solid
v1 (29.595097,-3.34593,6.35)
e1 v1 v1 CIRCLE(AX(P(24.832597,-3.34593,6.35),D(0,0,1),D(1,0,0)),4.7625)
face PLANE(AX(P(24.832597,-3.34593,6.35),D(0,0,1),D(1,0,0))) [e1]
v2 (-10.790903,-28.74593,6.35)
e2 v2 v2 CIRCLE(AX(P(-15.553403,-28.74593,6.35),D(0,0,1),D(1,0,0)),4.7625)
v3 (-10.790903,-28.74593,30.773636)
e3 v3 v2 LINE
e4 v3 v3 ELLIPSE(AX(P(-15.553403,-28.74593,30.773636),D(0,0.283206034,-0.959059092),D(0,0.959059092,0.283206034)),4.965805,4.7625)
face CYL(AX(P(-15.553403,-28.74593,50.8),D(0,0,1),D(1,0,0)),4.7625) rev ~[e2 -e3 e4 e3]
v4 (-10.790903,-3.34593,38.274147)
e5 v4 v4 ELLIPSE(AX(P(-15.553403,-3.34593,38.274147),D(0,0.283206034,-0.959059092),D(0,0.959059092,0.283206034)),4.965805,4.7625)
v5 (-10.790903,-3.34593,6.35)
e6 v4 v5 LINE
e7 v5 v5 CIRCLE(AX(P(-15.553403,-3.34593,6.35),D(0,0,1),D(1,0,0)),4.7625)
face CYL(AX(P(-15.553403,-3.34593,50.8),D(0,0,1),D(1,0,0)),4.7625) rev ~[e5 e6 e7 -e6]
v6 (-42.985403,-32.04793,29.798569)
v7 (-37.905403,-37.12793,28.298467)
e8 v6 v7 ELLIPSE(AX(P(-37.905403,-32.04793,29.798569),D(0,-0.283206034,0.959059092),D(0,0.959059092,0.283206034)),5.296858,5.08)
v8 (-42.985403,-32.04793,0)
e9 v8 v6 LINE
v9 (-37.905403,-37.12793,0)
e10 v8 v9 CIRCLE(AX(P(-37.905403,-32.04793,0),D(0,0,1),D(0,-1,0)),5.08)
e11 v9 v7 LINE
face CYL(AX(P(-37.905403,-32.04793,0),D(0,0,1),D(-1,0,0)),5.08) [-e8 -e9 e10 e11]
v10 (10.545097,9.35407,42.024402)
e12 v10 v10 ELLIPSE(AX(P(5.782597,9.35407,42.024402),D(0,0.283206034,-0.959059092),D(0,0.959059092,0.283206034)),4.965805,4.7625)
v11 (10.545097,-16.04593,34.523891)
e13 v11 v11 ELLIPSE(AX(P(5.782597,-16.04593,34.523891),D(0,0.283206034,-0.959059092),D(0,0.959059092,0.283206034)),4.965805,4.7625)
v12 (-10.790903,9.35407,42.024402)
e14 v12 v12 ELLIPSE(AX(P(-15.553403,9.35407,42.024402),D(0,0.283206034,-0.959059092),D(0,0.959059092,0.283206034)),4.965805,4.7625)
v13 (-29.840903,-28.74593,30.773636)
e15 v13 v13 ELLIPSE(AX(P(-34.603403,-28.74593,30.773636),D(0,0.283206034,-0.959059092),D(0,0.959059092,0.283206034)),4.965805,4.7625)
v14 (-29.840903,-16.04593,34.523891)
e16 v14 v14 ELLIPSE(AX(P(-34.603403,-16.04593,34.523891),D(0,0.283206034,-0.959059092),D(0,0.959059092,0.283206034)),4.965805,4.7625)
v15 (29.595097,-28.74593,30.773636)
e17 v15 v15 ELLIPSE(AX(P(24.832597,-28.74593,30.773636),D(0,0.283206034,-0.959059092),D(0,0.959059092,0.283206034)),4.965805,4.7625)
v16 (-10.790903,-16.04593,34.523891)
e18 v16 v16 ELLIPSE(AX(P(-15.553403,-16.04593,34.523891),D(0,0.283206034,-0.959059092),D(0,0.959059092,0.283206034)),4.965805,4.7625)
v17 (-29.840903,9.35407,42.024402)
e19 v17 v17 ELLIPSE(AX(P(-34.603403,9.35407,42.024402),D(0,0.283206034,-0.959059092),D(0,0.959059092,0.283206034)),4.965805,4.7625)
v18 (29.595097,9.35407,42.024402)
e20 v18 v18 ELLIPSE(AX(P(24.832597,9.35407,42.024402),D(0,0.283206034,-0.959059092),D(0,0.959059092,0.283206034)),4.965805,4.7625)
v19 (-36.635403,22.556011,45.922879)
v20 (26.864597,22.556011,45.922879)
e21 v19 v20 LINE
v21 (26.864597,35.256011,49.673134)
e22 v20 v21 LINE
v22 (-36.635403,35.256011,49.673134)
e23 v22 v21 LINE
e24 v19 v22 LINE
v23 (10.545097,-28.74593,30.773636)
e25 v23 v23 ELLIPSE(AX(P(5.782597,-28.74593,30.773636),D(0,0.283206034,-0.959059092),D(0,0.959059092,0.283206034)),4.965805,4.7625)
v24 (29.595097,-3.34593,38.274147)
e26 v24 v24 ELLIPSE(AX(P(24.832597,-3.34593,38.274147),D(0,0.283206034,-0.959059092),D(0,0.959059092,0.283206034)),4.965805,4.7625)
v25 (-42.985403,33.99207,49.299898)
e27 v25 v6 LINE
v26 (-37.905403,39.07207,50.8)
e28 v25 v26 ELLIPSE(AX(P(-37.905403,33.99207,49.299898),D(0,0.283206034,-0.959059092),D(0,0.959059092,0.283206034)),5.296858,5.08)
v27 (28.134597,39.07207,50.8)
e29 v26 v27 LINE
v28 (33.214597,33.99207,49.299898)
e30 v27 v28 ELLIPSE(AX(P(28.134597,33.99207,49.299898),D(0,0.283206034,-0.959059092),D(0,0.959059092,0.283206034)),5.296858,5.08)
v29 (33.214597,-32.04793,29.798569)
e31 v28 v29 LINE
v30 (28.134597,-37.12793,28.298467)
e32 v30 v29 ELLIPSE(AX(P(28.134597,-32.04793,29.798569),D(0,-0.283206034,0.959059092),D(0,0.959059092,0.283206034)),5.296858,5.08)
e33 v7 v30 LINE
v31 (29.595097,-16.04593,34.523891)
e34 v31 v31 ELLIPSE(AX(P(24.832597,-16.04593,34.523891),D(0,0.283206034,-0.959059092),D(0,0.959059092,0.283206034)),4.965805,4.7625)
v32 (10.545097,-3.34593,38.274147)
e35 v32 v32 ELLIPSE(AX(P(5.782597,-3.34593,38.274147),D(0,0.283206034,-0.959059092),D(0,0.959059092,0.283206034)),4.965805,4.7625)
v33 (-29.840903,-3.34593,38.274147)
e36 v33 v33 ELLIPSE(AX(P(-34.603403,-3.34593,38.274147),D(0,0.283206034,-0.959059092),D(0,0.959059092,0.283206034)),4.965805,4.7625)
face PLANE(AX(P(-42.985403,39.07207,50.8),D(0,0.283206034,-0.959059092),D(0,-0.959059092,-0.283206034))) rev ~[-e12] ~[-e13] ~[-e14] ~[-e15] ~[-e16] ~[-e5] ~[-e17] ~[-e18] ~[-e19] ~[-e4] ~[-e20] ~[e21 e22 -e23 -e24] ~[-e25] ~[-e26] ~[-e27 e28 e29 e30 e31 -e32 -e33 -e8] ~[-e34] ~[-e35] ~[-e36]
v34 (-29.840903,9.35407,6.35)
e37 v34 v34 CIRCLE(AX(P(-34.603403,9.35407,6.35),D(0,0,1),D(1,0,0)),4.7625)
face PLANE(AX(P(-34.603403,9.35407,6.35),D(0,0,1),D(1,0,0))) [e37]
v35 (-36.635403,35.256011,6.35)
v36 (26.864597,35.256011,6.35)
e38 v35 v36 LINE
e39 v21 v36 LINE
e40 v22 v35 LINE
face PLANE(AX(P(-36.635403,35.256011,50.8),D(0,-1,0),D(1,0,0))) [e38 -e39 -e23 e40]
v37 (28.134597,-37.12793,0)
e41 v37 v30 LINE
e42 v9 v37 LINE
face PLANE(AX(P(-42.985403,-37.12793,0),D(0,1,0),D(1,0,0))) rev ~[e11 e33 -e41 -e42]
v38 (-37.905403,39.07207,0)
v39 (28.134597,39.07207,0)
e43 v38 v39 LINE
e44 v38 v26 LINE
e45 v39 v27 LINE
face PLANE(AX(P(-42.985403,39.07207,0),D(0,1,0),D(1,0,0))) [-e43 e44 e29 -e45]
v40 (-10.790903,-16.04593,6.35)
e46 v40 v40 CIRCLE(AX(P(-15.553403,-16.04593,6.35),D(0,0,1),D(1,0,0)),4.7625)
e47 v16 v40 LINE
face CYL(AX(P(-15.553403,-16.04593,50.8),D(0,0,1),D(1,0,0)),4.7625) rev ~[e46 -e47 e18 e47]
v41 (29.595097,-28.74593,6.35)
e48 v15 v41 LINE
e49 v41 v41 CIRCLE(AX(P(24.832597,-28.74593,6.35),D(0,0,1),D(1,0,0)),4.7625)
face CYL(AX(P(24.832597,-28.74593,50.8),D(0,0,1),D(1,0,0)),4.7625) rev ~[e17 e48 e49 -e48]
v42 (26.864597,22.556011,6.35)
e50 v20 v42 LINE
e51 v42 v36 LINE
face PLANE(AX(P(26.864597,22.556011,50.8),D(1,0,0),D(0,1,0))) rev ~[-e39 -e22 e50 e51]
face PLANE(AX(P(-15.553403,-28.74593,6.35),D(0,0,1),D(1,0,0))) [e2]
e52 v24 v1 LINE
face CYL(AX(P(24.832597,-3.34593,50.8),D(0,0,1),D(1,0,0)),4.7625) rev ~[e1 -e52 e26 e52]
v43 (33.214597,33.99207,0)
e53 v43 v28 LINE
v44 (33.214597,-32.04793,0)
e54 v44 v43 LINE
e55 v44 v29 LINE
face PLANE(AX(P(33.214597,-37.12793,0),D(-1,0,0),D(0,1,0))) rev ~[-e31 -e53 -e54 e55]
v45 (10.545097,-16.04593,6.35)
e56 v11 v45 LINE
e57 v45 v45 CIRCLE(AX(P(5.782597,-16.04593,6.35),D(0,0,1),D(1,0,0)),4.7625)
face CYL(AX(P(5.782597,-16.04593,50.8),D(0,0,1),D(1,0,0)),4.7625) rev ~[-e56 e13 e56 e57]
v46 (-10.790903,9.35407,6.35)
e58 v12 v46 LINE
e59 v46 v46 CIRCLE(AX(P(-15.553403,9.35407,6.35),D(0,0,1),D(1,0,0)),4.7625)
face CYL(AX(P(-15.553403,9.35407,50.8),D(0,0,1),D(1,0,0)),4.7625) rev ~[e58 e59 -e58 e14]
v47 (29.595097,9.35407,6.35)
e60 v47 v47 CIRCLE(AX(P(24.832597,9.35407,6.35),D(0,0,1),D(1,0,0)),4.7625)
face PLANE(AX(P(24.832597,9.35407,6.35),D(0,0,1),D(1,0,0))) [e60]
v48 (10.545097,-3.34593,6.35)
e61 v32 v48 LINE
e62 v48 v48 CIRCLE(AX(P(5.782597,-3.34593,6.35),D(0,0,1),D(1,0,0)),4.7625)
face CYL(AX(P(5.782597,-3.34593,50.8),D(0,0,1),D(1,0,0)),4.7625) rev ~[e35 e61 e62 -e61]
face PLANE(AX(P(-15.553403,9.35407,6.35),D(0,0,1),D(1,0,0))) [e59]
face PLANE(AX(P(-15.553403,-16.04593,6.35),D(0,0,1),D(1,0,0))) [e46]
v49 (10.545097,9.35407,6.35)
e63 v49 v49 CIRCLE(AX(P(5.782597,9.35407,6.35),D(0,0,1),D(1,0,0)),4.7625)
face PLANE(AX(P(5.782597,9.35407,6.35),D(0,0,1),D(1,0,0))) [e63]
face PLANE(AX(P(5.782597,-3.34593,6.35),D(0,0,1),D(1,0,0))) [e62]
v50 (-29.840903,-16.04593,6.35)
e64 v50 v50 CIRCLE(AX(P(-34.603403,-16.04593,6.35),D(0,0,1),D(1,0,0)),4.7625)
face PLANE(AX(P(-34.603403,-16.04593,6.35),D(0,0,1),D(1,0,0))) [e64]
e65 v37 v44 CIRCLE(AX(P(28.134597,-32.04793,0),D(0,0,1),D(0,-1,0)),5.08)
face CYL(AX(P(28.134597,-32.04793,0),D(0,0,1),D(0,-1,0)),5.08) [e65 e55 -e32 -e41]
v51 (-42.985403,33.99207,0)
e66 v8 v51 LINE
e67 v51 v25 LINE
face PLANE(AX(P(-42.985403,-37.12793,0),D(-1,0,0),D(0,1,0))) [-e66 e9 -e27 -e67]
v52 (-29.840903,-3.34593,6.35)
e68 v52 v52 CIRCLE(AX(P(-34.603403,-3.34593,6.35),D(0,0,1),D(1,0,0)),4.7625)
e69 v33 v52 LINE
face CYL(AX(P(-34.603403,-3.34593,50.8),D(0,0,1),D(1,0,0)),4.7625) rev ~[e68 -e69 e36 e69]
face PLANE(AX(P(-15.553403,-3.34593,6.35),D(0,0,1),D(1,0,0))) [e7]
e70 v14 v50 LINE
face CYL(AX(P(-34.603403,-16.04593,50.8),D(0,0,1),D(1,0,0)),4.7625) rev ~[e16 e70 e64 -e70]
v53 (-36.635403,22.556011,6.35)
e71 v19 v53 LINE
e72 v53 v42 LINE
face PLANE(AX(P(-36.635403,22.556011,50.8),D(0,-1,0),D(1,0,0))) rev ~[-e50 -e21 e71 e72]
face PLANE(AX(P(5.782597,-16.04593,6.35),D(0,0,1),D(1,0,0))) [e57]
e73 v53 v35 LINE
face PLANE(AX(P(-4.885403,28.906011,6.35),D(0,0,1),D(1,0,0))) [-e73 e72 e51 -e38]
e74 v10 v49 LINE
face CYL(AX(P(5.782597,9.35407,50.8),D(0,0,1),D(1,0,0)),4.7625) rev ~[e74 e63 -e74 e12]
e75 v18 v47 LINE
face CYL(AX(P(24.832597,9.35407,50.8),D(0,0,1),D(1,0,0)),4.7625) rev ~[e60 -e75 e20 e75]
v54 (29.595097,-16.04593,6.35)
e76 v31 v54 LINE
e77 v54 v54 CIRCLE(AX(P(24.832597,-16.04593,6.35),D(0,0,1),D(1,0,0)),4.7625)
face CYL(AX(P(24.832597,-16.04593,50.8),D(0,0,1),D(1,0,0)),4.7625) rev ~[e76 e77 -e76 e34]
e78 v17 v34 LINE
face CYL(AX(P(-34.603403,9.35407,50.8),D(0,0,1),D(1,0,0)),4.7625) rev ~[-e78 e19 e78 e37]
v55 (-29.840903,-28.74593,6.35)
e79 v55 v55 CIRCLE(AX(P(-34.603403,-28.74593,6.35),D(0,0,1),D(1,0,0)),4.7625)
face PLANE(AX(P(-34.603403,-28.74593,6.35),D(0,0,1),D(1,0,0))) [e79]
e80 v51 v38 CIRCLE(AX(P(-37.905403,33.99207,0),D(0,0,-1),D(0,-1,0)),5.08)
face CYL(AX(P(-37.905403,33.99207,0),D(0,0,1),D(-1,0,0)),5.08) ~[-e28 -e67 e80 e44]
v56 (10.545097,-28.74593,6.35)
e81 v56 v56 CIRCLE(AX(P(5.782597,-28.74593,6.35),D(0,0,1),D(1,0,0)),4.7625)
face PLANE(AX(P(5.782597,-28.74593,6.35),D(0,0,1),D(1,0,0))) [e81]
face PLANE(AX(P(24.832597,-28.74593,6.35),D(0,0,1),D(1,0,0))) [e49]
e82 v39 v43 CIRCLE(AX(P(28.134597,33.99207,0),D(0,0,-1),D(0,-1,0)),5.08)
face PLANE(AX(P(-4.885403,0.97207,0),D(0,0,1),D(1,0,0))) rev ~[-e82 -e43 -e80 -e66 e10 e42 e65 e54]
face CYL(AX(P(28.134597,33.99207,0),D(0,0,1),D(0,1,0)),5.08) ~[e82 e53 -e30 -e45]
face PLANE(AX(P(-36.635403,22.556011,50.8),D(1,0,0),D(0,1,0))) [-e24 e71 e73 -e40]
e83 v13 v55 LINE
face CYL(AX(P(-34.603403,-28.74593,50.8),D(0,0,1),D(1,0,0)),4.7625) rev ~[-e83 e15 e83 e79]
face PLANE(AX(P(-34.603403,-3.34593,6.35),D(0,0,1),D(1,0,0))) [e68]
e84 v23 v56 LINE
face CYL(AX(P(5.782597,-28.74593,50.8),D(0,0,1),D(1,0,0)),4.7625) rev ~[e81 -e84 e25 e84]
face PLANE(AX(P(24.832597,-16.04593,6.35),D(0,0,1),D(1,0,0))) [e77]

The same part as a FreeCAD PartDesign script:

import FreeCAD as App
import Part
import Sketcher
from FreeCAD import Vector
Q = App.Units.Quantity


def edges_at(feature, points):
    """Names of the edges that pass closest to the given points."""
    edges = feature.Shape.Edges
    near = lambda p: min(range(len(edges)), key=lambda i: edges[i].distToShape(Part.Vertex(*p))[0])
    return sorted({f"Edge{near(p) + 1}" for p in points})


def add_polygon(sketch, points):
    """Adds a closed chain of lines whose ends are joined by coincident constraints."""
    first, n = sketch.GeometryCount, len(points)
    for a, b in zip(points, points[1:] + points[:1]):
        sketch.addGeometry(Part.LineSegment(App.Vector(*a, 0), App.Vector(*b, 0)), False)
    for i in range(n):
        sketch.addConstraint(Sketcher.Constraint("Coincident", first + i, 2, first + (i + 1) % n, 1))

doc = App.newDocument("Part")
body = doc.addObject("PartDesign::Body", "Body")

sketch1 = body.newObject("Sketcher::SketchObject", "Sketch")
sketch1.AttachmentSupport = (doc.getObject("XY_Plane"), [""])
sketch1.MapMode = "FlatFace"
add_polygon(sketch1, [(-43, 39), (-43, -37), (33, -37), (33, 39)])
sketch1.addConstraint([
    Sketcher.Constraint("Vertical", 0),
    Sketcher.Constraint("Horizontal", 1),
    Sketcher.Constraint("Vertical", 2),
    Sketcher.Constraint("Horizontal", 3),
    Sketcher.Constraint("Equal", 3, 0),
    Sketcher.Constraint("DistanceX", 1, 1, 1, 2, Q("3 in")),
    Sketcher.Constraint("DistanceY", 0, 2, -1, 1, 37.12793),
    Sketcher.Constraint("DistanceX", 0, 2, -1, 1, 42.985403),
])
pad1 = body.newObject("PartDesign::Pad", "Pad")
pad1.Profile = sketch1
pad1.Length = Q("2 in")

sketch2 = body.newObject("Sketcher::SketchObject", "Sketch001")
sketch2.AttachmentSupport = (doc.getObject("XY_Plane"), [""])
sketch2.MapMode = "FlatFace"
sketch2.AttachmentOffset = App.Placement(Vector(0, 0, 2 * 25.4), App.Rotation())
sketch2.addGeometry(Part.Circle(Vector(-34.6, 9.4, 0), Vector(0, 0, 1), 4.8), False)
sketch2.addGeometry(Part.Circle(Vector(-15.6, 9.4, 0), Vector(0, 0, 1), 4.8), False)
sketch2.addGeometry(Part.Circle(Vector(-34.6, -3.3, 0), Vector(0, 0, 1), 4.8), False)
sketch2.addGeometry(Part.Circle(Vector(-34.6, -16, 0), Vector(0, 0, 1), 4.8), False)
sketch2.addGeometry(Part.Circle(Vector(-34.6, -28.7, 0), Vector(0, 0, 1), 4.8), False)
sketch2.addGeometry(Part.Circle(Vector(-15.6, -3.3, 0), Vector(0, 0, 1), 4.8), False)
sketch2.addGeometry(Part.Circle(Vector(-15.6, -16, 0), Vector(0, 0, 1), 4.8), False)
sketch2.addGeometry(Part.Circle(Vector(-15.6, -28.7, 0), Vector(0, 0, 1), 4.8), False)
sketch2.addGeometry(Part.Circle(Vector(5.8, 9.4, 0), Vector(0, 0, 1), 4.8), False)
sketch2.addGeometry(Part.Circle(Vector(5.8, -3.3, 0), Vector(0, 0, 1), 4.8), False)
sketch2.addGeometry(Part.Circle(Vector(5.8, -16, 0), Vector(0, 0, 1), 4.8), False)
sketch2.addGeometry(Part.Circle(Vector(5.8, -28.7, 0), Vector(0, 0, 1), 4.8), False)
sketch2.addGeometry(Part.Circle(Vector(24.8, 9.4, 0), Vector(0, 0, 1), 4.8), False)
sketch2.addGeometry(Part.Circle(Vector(24.8, -3.3, 0), Vector(0, 0, 1), 4.8), False)
sketch2.addGeometry(Part.Circle(Vector(24.8, -16, 0), Vector(0, 0, 1), 4.8), False)
sketch2.addGeometry(Part.Circle(Vector(24.8, -28.7, 0), Vector(0, 0, 1), 4.8), False)
add_polygon(sketch2, [(-36.6, 35.3), (-36.6, 22.6), (26.9, 22.6), (26.9, 35.3)])
sketch2.addConstraint([
    Sketcher.Constraint("Vertical", 16),
    Sketcher.Constraint("Horizontal", 17),
    Sketcher.Constraint("Vertical", 18),
    Sketcher.Constraint("Horizontal", 19),
    Sketcher.Constraint("Equal", 0, 1),
    Sketcher.Constraint("Equal", 1, 2),
    Sketcher.Constraint("Equal", 2, 3),
    Sketcher.Constraint("Equal", 3, 4),
    Sketcher.Constraint("Equal", 4, 5),
    Sketcher.Constraint("Equal", 5, 6),
    Sketcher.Constraint("Equal", 6, 7),
    Sketcher.Constraint("Equal", 7, 8),
    Sketcher.Constraint("Equal", 8, 9),
    Sketcher.Constraint("Equal", 9, 10),
    Sketcher.Constraint("Equal", 10, 11),
    Sketcher.Constraint("Equal", 11, 12),
    Sketcher.Constraint("Equal", 12, 13),
    Sketcher.Constraint("Equal", 13, 14),
    Sketcher.Constraint("Equal", 14, 15),
    Sketcher.Constraint("Horizontal", 0, 3, 1, 3),
    Sketcher.Constraint("Horizontal", 2, 3, 5, 3),
    Sketcher.Constraint("Horizontal", 3, 3, 6, 3),
    Sketcher.Constraint("Horizontal", 4, 3, 7, 3),
    Sketcher.Constraint("Horizontal", 1, 3, 8, 3),
    Sketcher.Constraint("Horizontal", 5, 3, 9, 3),
    Sketcher.Constraint("Horizontal", 6, 3, 10, 3),
    Sketcher.Constraint("Horizontal", 7, 3, 11, 3),
    Sketcher.Constraint("Horizontal", 8, 3, 12, 3),
    Sketcher.Constraint("Horizontal", 9, 3, 13, 3),
    Sketcher.Constraint("Horizontal", 10, 3, 14, 3),
    Sketcher.Constraint("Horizontal", 11, 3, 15, 3),
    Sketcher.Constraint("Vertical", 0, 3, 2, 3),
    Sketcher.Constraint("Vertical", 2, 3, 3, 3),
    Sketcher.Constraint("Vertical", 3, 3, 4, 3),
    Sketcher.Constraint("Vertical", 1, 3, 5, 3),
    Sketcher.Constraint("Vertical", 5, 3, 6, 3),
    Sketcher.Constraint("Vertical", 6, 3, 7, 3),
    Sketcher.Constraint("Vertical", 8, 3, 9, 3),
    Sketcher.Constraint("Vertical", 9, 3, 10, 3),
    Sketcher.Constraint("Vertical", 10, 3, 11, 3),
    Sketcher.Constraint("Vertical", 12, 3, 13, 3),
    Sketcher.Constraint("Vertical", 13, 3, 14, 3),
    Sketcher.Constraint("Vertical", 14, 3, 15, 3),
    Sketcher.Constraint("Diameter", 0, Q("0.375 in")),
    Sketcher.Constraint("DistanceX", 17, 1, 17, 2, Q("2.5 in")),
    Sketcher.Constraint("DistanceY", 16, 2, 16, 1, Q("0.5 in")),
    Sketcher.Constraint("DistanceY", 3, 3, 0, 3, Q("1 in")),
    Sketcher.Constraint("DistanceY", 4, 3, 2, 3, Q("1 in")),
    Sketcher.Constraint("DistanceY", 2, 3, 0, 3, Q("0.5 in")),
    Sketcher.Constraint("DistanceX", 0, 3, 1, 3, Q("0.75 in")),
    Sketcher.Constraint("DistanceX", 1, 3, 8, 3, Q("0.84 in")),
    Sketcher.Constraint("DistanceX", 8, 3, 12, 3, Q("0.75 in")),
    Sketcher.Constraint("DistanceX", 16, 2, 0, 3, Q("0.08 in")),
    Sketcher.Constraint("DistanceY", -1, 1, 0, 3, 9.35407),
    Sketcher.Constraint("DistanceY", -1, 1, 16, 2, 22.556011),
    Sketcher.Constraint("DistanceX", 0, 3, -1, 1, 34.603403),
])
pocket1 = body.newObject("PartDesign::Pocket", "Pocket")
pocket1.Profile = sketch2
pocket1.Length = Q("1.75 in")

sketch3 = body.newObject("Sketcher::SketchObject", "Sketch002")
sketch3.AttachmentSupport = (doc.getObject("YZ_Plane"), [""])
sketch3.MapMode = "FlatFace"
sketch3.AttachmentOffset = App.Placement(Vector(0, 0, -42.985403), App.Rotation())
add_polygon(sketch3, [(-37, 51), (39, 51), (-37, 28)])
sketch3.addConstraint([
    Sketcher.Constraint("Horizontal", 0),
    Sketcher.Constraint("Vertical", 2),
    Sketcher.Constraint("DistanceX", 0, 1, 0, 2, Q("3 in")),
    Sketcher.Constraint("DistanceY", -1, 1, 0, 2, Q("2 in")),
    Sketcher.Constraint("DistanceY", 2, 1, 2, 2, 22.501533),
    Sketcher.Constraint("DistanceX", -1, 1, 0, 2, 39.07207),
])
pocket2 = body.newObject("PartDesign::Pocket", "Pocket001")
pocket2.Profile = sketch3
pocket2.Length = Q("3 in")
pocket2.Reversed = True
doc.recompute()

fillet = body.newObject("PartDesign::Fillet", "Fillet")
fillet.Base = (pocket2, edges_at(pocket2, [
    (33.215, -37.128, 14.149),
    (-42.985, -37.128, 14.149),
    (33.215, 39.072, 25.4),
    (-42.985, 39.072, 25.4),
]))
fillet.Radius = Q("0.2 in")

doc.recompute()
